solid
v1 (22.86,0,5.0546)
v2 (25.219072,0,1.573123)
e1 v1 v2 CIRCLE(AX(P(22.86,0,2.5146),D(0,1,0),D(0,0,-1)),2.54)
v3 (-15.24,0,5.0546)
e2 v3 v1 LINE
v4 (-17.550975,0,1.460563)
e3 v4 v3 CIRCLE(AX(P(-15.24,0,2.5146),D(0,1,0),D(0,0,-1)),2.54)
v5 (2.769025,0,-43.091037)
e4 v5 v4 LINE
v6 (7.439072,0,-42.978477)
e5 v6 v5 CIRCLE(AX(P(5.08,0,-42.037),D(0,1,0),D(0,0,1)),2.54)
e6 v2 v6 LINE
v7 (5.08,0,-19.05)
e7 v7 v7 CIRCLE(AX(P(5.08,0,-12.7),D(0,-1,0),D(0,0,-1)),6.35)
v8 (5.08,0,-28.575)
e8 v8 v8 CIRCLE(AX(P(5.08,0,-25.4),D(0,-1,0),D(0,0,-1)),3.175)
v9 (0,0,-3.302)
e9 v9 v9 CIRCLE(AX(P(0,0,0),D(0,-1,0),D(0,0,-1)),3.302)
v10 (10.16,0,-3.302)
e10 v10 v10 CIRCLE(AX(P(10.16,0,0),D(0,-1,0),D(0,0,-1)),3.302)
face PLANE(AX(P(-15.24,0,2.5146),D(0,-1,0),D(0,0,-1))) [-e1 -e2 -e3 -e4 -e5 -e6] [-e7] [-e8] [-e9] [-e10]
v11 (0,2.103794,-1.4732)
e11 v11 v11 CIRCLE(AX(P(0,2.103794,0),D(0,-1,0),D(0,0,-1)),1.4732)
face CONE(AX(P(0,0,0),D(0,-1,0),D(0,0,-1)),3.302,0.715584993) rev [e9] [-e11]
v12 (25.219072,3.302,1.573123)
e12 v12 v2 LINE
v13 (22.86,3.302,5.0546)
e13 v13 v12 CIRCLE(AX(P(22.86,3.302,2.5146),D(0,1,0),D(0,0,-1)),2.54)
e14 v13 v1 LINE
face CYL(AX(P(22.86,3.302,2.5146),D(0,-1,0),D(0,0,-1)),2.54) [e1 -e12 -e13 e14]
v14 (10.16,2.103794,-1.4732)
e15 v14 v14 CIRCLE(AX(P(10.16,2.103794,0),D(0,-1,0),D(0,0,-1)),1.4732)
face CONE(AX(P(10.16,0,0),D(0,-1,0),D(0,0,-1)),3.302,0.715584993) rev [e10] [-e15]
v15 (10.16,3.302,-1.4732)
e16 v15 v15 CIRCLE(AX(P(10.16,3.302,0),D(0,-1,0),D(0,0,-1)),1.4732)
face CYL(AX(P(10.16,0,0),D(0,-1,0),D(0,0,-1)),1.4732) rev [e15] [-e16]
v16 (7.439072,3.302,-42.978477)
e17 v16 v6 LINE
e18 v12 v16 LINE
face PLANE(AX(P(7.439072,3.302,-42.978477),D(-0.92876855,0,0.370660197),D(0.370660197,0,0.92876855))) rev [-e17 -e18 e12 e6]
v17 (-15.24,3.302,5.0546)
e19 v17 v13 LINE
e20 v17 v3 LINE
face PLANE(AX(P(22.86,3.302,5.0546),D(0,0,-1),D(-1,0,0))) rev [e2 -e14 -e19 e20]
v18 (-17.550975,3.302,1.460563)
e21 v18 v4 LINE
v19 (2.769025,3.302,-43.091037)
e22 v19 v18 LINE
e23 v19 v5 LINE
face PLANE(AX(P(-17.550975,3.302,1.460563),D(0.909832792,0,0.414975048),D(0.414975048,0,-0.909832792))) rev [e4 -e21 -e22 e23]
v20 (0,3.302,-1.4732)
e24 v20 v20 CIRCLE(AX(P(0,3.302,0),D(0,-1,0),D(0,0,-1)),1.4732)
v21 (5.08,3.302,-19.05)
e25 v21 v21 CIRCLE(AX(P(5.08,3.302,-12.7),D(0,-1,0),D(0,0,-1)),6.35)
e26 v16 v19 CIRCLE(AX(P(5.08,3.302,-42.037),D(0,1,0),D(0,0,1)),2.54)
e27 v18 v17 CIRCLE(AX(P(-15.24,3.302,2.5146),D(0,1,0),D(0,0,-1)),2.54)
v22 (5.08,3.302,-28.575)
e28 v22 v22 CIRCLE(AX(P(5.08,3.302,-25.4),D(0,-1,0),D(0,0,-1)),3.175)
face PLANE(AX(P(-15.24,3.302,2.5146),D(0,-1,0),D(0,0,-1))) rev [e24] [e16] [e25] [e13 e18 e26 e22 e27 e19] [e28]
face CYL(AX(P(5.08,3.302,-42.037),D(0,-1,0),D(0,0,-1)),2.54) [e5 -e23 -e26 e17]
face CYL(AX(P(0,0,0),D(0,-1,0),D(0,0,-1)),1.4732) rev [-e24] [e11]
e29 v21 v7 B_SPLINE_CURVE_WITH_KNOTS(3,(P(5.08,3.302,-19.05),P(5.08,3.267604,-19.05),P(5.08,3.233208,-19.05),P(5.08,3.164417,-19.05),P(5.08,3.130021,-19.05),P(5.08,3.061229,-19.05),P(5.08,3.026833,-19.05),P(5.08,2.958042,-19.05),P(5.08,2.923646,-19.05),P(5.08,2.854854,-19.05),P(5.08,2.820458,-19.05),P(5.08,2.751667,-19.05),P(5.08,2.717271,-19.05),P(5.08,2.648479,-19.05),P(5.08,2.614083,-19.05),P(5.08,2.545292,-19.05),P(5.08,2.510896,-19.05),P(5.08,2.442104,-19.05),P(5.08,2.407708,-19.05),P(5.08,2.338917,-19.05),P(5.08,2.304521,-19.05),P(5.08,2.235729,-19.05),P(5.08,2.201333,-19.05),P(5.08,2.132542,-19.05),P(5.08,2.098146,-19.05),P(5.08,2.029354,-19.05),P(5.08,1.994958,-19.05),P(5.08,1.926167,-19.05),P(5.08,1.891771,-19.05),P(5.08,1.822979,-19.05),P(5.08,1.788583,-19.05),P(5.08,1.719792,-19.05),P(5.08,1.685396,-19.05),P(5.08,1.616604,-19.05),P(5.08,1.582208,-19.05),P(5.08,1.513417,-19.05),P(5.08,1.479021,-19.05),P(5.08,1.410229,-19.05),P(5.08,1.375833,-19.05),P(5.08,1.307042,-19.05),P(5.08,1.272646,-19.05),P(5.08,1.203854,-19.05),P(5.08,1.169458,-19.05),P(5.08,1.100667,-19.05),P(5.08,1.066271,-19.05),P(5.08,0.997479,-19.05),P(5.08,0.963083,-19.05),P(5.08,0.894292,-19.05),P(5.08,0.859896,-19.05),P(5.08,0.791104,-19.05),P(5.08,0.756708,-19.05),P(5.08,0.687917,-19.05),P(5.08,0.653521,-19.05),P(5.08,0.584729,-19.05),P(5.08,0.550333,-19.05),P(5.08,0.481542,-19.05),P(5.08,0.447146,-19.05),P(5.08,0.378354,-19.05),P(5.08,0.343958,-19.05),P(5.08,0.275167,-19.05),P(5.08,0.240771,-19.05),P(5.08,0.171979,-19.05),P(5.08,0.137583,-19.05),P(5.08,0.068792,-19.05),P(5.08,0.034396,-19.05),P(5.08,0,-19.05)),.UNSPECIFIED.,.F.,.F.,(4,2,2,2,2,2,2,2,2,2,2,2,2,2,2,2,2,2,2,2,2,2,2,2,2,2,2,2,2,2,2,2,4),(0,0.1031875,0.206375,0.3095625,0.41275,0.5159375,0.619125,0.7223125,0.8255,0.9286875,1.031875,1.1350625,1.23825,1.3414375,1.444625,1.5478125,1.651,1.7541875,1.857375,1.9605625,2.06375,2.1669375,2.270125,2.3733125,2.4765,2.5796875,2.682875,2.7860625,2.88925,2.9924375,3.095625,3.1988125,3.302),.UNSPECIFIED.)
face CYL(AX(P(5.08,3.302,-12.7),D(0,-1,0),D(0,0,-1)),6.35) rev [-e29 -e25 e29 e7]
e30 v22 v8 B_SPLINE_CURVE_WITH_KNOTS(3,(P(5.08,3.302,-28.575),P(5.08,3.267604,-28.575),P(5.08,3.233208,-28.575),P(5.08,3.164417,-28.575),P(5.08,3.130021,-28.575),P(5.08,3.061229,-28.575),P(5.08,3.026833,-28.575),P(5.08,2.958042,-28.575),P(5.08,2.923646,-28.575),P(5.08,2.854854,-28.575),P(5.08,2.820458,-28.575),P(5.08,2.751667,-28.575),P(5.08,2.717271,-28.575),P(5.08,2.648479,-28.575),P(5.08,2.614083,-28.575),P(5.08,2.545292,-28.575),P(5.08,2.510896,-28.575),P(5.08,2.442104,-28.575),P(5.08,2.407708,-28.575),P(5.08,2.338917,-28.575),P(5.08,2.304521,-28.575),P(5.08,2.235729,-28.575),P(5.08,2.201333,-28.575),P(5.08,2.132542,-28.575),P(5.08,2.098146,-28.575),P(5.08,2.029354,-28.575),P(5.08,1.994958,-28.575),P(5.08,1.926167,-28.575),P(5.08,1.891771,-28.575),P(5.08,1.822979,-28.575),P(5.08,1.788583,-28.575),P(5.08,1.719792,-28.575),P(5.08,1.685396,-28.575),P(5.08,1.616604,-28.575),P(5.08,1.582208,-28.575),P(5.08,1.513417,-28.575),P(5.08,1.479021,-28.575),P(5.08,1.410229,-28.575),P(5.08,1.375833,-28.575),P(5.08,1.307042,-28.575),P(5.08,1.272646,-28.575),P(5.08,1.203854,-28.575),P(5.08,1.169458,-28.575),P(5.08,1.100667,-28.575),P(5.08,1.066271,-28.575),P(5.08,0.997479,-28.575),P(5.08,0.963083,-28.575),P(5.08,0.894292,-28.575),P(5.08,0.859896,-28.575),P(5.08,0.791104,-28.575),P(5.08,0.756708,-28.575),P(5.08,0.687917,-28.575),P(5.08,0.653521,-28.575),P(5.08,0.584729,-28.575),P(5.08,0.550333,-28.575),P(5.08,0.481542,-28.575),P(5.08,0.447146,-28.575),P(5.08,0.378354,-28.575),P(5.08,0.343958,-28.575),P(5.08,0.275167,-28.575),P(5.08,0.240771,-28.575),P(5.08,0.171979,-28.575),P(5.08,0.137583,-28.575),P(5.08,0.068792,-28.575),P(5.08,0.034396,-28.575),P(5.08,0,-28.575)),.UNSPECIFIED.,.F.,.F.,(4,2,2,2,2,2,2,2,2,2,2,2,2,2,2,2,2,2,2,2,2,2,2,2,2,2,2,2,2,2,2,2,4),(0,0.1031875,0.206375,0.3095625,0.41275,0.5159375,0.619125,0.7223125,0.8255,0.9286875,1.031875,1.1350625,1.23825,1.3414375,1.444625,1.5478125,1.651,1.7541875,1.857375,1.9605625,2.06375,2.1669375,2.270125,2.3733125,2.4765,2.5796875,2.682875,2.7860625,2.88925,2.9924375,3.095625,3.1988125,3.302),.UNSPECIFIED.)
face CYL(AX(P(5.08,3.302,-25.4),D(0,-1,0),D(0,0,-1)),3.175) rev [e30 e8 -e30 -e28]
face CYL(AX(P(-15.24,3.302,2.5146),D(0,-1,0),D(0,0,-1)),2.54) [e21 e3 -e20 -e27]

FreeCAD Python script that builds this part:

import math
import FreeCAD as App
import Part
import Sketcher

V = App.Vector
Q = App.Units.Quantity


def add_polygon(sketch, points):
    """Adds a closed chain of lines whose ends are joined by coincident constraints."""
    first, n = sketch.GeometryCount, len(points)
    for a, b in zip(points, points[1:] + points[:1]):
        sketch.addGeometry(Part.LineSegment(App.Vector(*a, 0), App.Vector(*b, 0)), False)
    for i in range(n):
        sketch.addConstraint(Sketcher.Constraint("Coincident", first + i, 2, first + (i + 1) % n, 1))

doc = App.newDocument("Part")
body = doc.addObject("PartDesign::Body", "Body")

sketch1 = body.newObject("Sketcher::SketchObject", "Sketch")
sketch1.AttachmentSupport = (doc.getObject("XZ_Plane"), [""])
sketch1.MapMode = "FlatFace"
sketch1.addGeometry(Part.LineSegment(V(25.219072, 1.573123, 0), V(7.439072, -42.978477, 0)), False)
sketch1.addGeometry(Part.ArcOfCircle(Part.Circle(V(5.08, -42.037, 0), V(0, 0, 1), 2.54), math.radians(-155.482255), math.radians(-21.756339)), False)
sketch1.addGeometry(Part.LineSegment(V(2.769025, -43.091037, 0), V(-17.550975, 1.460563, 0)), False)
sketch1.addGeometry(Part.ArcOfCircle(Part.Circle(V(-15.24, 2.5146, 0), V(0, 0, 1), 2.54), math.radians(90), math.radians(204.517745)), False)
sketch1.addGeometry(Part.LineSegment(V(-15.24, 5.0546, 0), V(22.86, 5.0546, 0)), False)
sketch1.addGeometry(Part.ArcOfCircle(Part.Circle(V(22.86, 2.5146, 0), V(0, 0, 1), 2.54), math.radians(-21.756339), math.radians(90)), False)
sketch1.addGeometry(Part.Circle(V(10.16, 0, 0), V(0, 0, 1), 1.1303), False)
sketch1.addGeometry(Part.Circle(V(0, 0, 0), V(0, 0, 1), 1.1303), False)
sketch1.addConstraint(Sketcher.Constraint("Tangent", 0, 2, 1, 2))
sketch1.addConstraint(Sketcher.Constraint("Tangent", 1, 1, 2, 1))
sketch1.addConstraint(Sketcher.Constraint("Tangent", 2, 2, 3, 2))
sketch1.addConstraint(Sketcher.Constraint("Tangent", 3, 1, 4, 1))
sketch1.addConstraint(Sketcher.Constraint("Tangent", 4, 2, 5, 2))
sketch1.addConstraint(Sketcher.Constraint("Tangent", 5, 1, 0, 1))
sketch1.addConstraint(Sketcher.Constraint("Horizontal", 4))
sketch1.addConstraint(Sketcher.Constraint("Coincident", 7, 3, -1, 1))
sketch1.addConstraint(Sketcher.Constraint("Equal", 1, 3))
sketch1.addConstraint(Sketcher.Constraint("Equal", 3, 5))
sketch1.addConstraint(Sketcher.Constraint("Equal", 6, 7))
sketch1.addConstraint(Sketcher.Constraint("PointOnObject", 6, 3, -1))
sketch1.addConstraint(Sketcher.Constraint("Radius", 1, Q("0.1 in")))
sketch1.addConstraint(Sketcher.Constraint("Diameter", 6, Q("0.089 in")))
sketch1.addConstraint(Sketcher.Constraint("DistanceX", 4, 1, 4, 2, Q("1.5 in")))
sketch1.addConstraint(Sketcher.Constraint("DistanceX", 3, 3, 6, 3, Q("1 in")))
sketch1.addConstraint(Sketcher.Constraint("DistanceX", -1, 1, 1, 3, Q("0.2 in")))
sketch1.addConstraint(Sketcher.Constraint("DistanceX", 3, 3, -1, 1, Q("0.6 in")))
sketch1.addConstraint(Sketcher.Constraint("DistanceY", 1, 3, -1, 1, Q("1.655 in")))
sketch1.addConstraint(Sketcher.Constraint("DistanceY", -1, 1, 3, 3, Q("0.099 in")))
pad1 = body.newObject("PartDesign::Pad", "Pad")
pad1.Profile = sketch1
pad1.Length = Q("0.13 in")
pad1.Reversed = True

sketch2 = body.newObject("Sketcher::SketchObject", "Sketch001")
sketch2.AttachmentSupport = (doc.getObject("YZ_Plane"), [""])
sketch2.MapMode = "FlatFace"
add_polygon(sketch2, [(3.302, 0), (0, 0), (0, -3.302), (2.103794, -1.4732), (3.302, -1.4732)])
sketch2.addConstraint(Sketcher.Constraint("Horizontal", 0))
sketch2.addConstraint(Sketcher.Constraint("Vertical", 1))
sketch2.addConstraint(Sketcher.Constraint("Horizontal", 3))
sketch2.addConstraint(Sketcher.Constraint("Vertical", 4))
sketch2.addConstraint(Sketcher.Constraint("Coincident", 0, 2, -1, 1))
sketch2.addConstraint(Sketcher.Constraint("Equal", 0, 1))
sketch2.addConstraint(Sketcher.Constraint("Angle", 2, Q("41 deg")))
sketch2.addConstraint(Sketcher.Constraint("DistanceX", 0, 2, 0, 1, Q("0.13 in")))
sketch2.addConstraint(Sketcher.Constraint("DistanceY", 4, 1, 4, 2, Q("0.058 in")))
groove = body.newObject("PartDesign::Groove", "Groove")
groove.Profile = sketch2
groove.ReferenceAxis = (sketch2, ["H_Axis"])
groove.Angle = 360
doc.recompute()

linearpattern = body.newObject("PartDesign::LinearPattern", "LinearPattern")
linearpattern.Originals = [groove]
linearpattern.Direction = (doc.getObject("X_Axis"), [""])
linearpattern.Mode = "offset"
linearpattern.Offset = Q("0.4 in")
linearpattern.Occurrences = 2
body.Tip = linearpattern

sketch3 = body.newObject("Sketcher::SketchObject", "Sketch002")
sketch3.AttachmentSupport = (doc.getObject("XZ_Plane"), [""])
sketch3.MapMode = "FlatFace"
sketch3.addGeometry(Part.Circle(V(5.08, -12.7, 0), V(0, 0, 1), 6.35), False)
sketch3.addConstraint(Sketcher.Constraint("Diameter", 0, Q("0.5 in")))
sketch3.addConstraint(Sketcher.Constraint("DistanceX", -1, 1, 0, 3, Q("0.2 in")))
sketch3.addConstraint(Sketcher.Constraint("DistanceY", 0, 3, -1, 1, Q("0.5 in")))
pocket1 = body.newObject("PartDesign::Pocket", "Pocket")
pocket1.Profile = sketch3
pocket1.Type = "ThroughAll"

sketch4 = body.newObject("Sketcher::SketchObject", "Sketch003")
sketch4.AttachmentSupport = (doc.getObject("XZ_Plane"), [""])
sketch4.MapMode = "FlatFace"
sketch4.addGeometry(Part.Circle(V(5.08, -25.4, 0), V(0, 0, 1), 3.175), False)
sketch4.addConstraint(Sketcher.Constraint("Diameter", 0, Q("0.25 in")))
sketch4.addConstraint(Sketcher.Constraint("DistanceY", 0, 3, -1, 1, Q("1 in")))
sketch4.addConstraint(Sketcher.Constraint("DistanceX", -1, 1, 0, 3, Q("0.2 in")))
pocket2 = body.newObject("PartDesign::Pocket", "Pocket001")
pocket2.Profile = sketch4
pocket2.Type = "ThroughAll"

doc.recompute()
